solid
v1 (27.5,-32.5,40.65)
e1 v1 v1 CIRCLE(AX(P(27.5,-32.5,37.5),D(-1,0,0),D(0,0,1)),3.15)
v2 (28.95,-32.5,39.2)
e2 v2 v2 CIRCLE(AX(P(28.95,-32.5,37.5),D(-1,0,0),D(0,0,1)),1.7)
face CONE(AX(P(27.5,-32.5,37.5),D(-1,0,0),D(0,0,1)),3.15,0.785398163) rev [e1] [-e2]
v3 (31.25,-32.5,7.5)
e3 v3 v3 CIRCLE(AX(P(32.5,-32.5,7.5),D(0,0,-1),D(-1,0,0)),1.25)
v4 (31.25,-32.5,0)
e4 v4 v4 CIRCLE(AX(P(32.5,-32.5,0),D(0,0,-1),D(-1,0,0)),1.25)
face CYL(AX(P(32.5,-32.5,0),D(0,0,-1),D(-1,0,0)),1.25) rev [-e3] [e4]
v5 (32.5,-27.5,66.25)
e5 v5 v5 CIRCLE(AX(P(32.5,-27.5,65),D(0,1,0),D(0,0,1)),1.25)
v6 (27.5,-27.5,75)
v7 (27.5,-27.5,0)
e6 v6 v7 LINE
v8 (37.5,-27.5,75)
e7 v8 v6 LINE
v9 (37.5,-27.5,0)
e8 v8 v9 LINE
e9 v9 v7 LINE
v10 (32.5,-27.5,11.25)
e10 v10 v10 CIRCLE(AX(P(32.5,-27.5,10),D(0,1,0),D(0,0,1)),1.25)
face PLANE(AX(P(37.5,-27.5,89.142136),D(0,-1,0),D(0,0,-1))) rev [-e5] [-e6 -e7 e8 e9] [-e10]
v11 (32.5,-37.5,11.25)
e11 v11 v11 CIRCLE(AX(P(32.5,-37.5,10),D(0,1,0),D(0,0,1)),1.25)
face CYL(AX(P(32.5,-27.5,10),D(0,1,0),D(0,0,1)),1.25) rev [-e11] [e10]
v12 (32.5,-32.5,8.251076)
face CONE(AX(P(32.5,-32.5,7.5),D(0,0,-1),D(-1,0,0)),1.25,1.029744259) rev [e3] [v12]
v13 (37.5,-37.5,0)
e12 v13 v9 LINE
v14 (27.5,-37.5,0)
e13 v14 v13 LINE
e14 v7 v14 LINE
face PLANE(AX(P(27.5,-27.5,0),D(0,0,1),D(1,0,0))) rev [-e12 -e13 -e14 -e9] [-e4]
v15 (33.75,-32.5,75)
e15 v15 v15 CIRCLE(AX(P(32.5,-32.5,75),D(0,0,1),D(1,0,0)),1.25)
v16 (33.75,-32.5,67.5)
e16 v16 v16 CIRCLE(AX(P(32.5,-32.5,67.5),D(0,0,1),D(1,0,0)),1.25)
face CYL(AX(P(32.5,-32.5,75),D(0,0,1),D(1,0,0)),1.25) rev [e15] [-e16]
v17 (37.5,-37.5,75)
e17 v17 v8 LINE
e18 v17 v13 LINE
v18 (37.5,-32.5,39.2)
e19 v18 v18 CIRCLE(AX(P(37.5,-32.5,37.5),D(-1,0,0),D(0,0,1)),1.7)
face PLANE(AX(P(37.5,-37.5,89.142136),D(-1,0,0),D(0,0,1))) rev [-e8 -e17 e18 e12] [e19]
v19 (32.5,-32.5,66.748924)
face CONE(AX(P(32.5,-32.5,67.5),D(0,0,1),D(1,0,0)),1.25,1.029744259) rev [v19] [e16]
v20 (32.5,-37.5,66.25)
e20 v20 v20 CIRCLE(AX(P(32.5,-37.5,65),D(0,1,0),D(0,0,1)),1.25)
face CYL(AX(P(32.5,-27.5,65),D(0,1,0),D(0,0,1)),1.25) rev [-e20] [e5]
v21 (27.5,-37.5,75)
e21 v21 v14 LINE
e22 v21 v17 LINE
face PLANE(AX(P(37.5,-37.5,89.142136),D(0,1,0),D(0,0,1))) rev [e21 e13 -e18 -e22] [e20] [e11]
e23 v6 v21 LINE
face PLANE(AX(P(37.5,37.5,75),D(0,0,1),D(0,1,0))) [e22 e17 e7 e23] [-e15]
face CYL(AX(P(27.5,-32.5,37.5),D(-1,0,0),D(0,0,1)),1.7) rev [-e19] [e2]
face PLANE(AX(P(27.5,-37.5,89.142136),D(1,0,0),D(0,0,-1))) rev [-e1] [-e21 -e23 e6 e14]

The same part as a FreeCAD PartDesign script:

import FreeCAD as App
import Part
import Sketcher
Q = App.Units.Quantity

doc = App.newDocument("Part")
body = doc.addObject("PartDesign::Body", "Body")

# Sketch on XY plane
sketch1 = body.newObject("Sketcher::SketchObject", "Sketch")
sketch1.AttachmentSupport = (doc.getObject("XY_Plane"), [""])
sketch1.MapMode = "FlatFace"
sketch1.addGeometry(Part.LineSegment(App.Vector(28, -28, 0), App.Vector(28, -38, 0)), False)
sketch1.addGeometry(Part.LineSegment(App.Vector(28, -38, 0), App.Vector(38, -38, 0)), False)
sketch1.addGeometry(Part.LineSegment(App.Vector(38, -38, 0), App.Vector(38, -28, 0)), False)
sketch1.addGeometry(Part.LineSegment(App.Vector(38, -28, 0), App.Vector(28, -28, 0)), False)
sketch1.addConstraint(Sketcher.Constraint("Coincident", 0, 2, 1, 1))
sketch1.addConstraint(Sketcher.Constraint("Coincident", 1, 2, 2, 1))
sketch1.addConstraint(Sketcher.Constraint("Coincident", 2, 2, 3, 1))
sketch1.addConstraint(Sketcher.Constraint("Coincident", 3, 2, 0, 1))
sketch1.addConstraint(Sketcher.Constraint("Vertical", 0))
sketch1.addConstraint(Sketcher.Constraint("Horizontal", 1))
sketch1.addConstraint(Sketcher.Constraint("Vertical", 2))
sketch1.addConstraint(Sketcher.Constraint("Horizontal", 3))
sketch1.addConstraint(Sketcher.Constraint("Equal", 3, 0))
sketch1.addConstraint(Sketcher.Constraint("DistanceX", 1, 1, 1, 2, Q("10 mm")))
sketch1.addConstraint(Sketcher.Constraint("DistanceX", -1, 1, 0, 2, Q("27.5 mm")))
sketch1.addConstraint(Sketcher.Constraint("DistanceY", 0, 2, -1, 1, Q("37.5 mm")))
pad1 = body.newObject("PartDesign::Pad", "Pad")
pad1.Profile = sketch1
pad1.Length = 75

# Sketch on XY plane
sketch2 = body.newObject("Sketcher::SketchObject", "Sketch001")
sketch2.AttachmentSupport = (doc.getObject("XY_Plane"), [""])
sketch2.MapMode = "FlatFace"
sketch2.AttachmentOffset = App.Placement(App.Vector(0, 0, 75), App.Rotation())
sketch2.addGeometry(Part.Circle(App.Vector(32.5, -32.5, 0), App.Vector(0, 0, 1), 1.2), False)
sketch2.addConstraint(Sketcher.Constraint("Diameter", 0, Q("2.5 mm")))
sketch2.addConstraint(Sketcher.Constraint("DistanceX", -1, 1, 0, 3, Q("32.5 mm")))
sketch2.addConstraint(Sketcher.Constraint("DistanceY", 0, 3, -1, 1, Q("32.5 mm")))
doc.recompute()
hole = body.newObject("PartDesign::Hole", "Hole")
hole.Profile = sketch2
hole.ThreadType = "None"
hole.Diameter = 2.5
hole.DepthType = "Dimension"
hole.Depth = 7.5
hole.DrillPoint = "Angled"
hole.DrillPointAngle = 118

# Sketch on XY plane
sketch3 = body.newObject("Sketcher::SketchObject", "Sketch002")
sketch3.AttachmentSupport = (doc.getObject("XY_Plane"), [""])
sketch3.MapMode = "FlatFace"
sketch3.addGeometry(Part.Circle(App.Vector(32.5, -32.5, 0), App.Vector(0, 0, 1), 1.2), False)
sketch3.addConstraint(Sketcher.Constraint("Diameter", 0, Q("2.5 mm")))
sketch3.addConstraint(Sketcher.Constraint("DistanceX", -1, 1, 0, 3, Q("32.5 mm")))
sketch3.addConstraint(Sketcher.Constraint("DistanceY", 0, 3, -1, 1, Q("32.5 mm")))
doc.recompute()
hole2 = body.newObject("PartDesign::Hole", "Hole001")
hole2.Profile = sketch3
hole2.ThreadType = "None"
hole2.Diameter = 2.5
hole2.DepthType = "Dimension"
hole2.Depth = 7.5
hole2.DrillPoint = "Angled"
hole2.DrillPointAngle = 118
hole2.Reversed = True

# Sketch on YZ plane
sketch4 = body.newObject("Sketcher::SketchObject", "Sketch003")
sketch4.AttachmentSupport = (doc.getObject("YZ_Plane"), [""])
sketch4.MapMode = "FlatFace"
sketch4.AttachmentOffset = App.Placement(App.Vector(0, 0, 27.5), App.Rotation())
sketch4.addGeometry(Part.Circle(App.Vector(-32.5, 37.5, 0), App.Vector(0, 0, 1), 1.7), False)
sketch4.addConstraint(Sketcher.Constraint("Diameter", 0, Q("3.4 mm")))
sketch4.addConstraint(Sketcher.Constraint("DistanceX", 0, 3, -1, 1, Q("32.5 mm")))
sketch4.addConstraint(Sketcher.Constraint("DistanceY", -1, 1, 0, 3, Q("37.5 mm")))
doc.recompute()
hole3 = body.newObject("PartDesign::Hole", "Hole002")
hole3.Profile = sketch4
hole3.ThreadType = "None"
hole3.Diameter = 3.4
hole3.DepthType = "ThroughAll"
hole3.HoleCutType = "Countersink"
hole3.HoleCutDiameter = 6.3
hole3.HoleCutCountersinkAngle = 90
hole3.Reversed = True

# Sketch on XZ plane
sketch5 = body.newObject("Sketcher::SketchObject", "Sketch004")
sketch5.AttachmentSupport = (doc.getObject("XZ_Plane"), [""])
sketch5.MapMode = "FlatFace"
sketch5.AttachmentOffset = App.Placement(App.Vector(0, 0, 27.5), App.Rotation())
sketch5.addGeometry(Part.Circle(App.Vector(32.5, 65, 0), App.Vector(0, 0, 1), 1.2), False)
sketch5.addGeometry(Part.Circle(App.Vector(32.5, 10, 0), App.Vector(0, 0, 1), 1.2), False)
sketch5.addConstraint(Sketcher.Constraint("Equal", 0, 1))
sketch5.addConstraint(Sketcher.Constraint("Vertical", 0, 3, 1, 3))
sketch5.addConstraint(Sketcher.Constraint("Diameter", 0, Q("2.5 mm")))
sketch5.addConstraint(Sketcher.Constraint("DistanceY", -1, 1, 0, 3, Q("65 mm")))
sketch5.addConstraint(Sketcher.Constraint("DistanceY", -1, 1, 1, 3, Q("10 mm")))
sketch5.addConstraint(Sketcher.Constraint("DistanceX", -1, 1, 0, 3, Q("32.5 mm")))
doc.recompute()
hole4 = body.newObject("PartDesign::Hole", "Hole003")
hole4.Profile = sketch5
hole4.ThreadType = "None"
hole4.Diameter = 2.5
hole4.DepthType = "ThroughAll"
hole4.Reversed = True

doc.recompute()
